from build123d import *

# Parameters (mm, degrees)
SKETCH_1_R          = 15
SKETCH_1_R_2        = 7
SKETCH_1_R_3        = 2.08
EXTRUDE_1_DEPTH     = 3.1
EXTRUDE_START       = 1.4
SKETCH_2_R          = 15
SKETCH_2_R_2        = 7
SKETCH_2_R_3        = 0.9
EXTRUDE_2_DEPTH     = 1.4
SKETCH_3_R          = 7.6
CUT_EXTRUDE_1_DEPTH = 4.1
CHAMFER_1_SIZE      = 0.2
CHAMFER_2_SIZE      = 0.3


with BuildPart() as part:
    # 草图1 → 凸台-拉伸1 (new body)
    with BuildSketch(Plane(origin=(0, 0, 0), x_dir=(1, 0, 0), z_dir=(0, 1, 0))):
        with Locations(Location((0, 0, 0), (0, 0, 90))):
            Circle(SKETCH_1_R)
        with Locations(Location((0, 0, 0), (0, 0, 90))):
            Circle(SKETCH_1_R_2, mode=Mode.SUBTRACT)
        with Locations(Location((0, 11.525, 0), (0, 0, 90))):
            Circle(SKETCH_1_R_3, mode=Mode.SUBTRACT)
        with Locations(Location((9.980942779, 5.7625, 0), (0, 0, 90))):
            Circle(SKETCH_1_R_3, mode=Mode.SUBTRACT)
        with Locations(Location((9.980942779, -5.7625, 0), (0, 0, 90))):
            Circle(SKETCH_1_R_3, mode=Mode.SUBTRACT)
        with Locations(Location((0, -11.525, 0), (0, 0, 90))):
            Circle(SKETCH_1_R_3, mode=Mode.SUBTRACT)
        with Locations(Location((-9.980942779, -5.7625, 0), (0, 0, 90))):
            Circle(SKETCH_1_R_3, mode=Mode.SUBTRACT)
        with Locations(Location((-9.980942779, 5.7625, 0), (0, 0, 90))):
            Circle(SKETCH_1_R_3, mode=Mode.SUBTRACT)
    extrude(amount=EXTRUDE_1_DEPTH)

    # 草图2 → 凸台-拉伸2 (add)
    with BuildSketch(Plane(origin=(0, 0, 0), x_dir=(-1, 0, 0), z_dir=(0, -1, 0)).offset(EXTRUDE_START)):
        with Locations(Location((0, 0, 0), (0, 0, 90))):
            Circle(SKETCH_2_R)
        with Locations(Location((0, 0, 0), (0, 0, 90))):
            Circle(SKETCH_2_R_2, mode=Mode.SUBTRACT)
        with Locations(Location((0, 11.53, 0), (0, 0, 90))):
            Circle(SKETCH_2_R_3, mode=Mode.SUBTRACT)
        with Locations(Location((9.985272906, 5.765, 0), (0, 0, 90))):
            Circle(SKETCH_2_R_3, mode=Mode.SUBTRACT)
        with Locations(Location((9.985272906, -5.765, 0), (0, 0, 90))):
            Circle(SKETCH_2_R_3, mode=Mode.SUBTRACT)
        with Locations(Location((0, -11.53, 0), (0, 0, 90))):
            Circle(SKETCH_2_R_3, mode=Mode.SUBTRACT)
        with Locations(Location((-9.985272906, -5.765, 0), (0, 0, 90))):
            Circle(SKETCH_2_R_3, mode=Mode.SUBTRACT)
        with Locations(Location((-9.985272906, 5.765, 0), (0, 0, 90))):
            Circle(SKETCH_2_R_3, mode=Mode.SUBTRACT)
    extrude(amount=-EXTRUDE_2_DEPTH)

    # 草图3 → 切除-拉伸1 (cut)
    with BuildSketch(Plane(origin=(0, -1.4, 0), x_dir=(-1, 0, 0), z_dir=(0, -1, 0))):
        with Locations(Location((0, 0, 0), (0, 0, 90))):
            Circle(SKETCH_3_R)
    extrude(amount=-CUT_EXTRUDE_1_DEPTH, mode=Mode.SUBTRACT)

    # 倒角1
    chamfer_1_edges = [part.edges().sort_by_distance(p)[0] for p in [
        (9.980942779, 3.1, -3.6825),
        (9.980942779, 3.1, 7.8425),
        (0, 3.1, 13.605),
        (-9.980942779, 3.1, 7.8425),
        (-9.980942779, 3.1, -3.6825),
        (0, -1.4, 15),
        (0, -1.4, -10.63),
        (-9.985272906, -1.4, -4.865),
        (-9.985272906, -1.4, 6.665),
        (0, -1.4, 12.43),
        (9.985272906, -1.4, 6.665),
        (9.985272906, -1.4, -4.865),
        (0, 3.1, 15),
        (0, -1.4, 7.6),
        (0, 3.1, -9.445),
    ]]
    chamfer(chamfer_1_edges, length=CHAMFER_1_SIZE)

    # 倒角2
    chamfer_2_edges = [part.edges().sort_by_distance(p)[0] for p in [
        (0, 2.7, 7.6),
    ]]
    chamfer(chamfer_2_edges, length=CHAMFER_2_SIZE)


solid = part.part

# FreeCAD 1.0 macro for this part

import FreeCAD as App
import Part
import Sketcher
from FreeCAD import Vector
Q = App.Units.Quantity


def edges_at(feature, points):
    """Names of the edges that pass closest to the given points."""
    edges = feature.Shape.Edges
    near = lambda p: min(range(len(edges)), key=lambda i: edges[i].distToShape(Part.Vertex(*p))[0])
    return sorted({f"Edge{near(p) + 1}" for p in points})

doc = App.newDocument("Part")
body = doc.addObject("PartDesign::Body", "Body")

# Sketch on XZ plane
sketch1 = body.newObject("Sketcher::SketchObject", "Sketch")
sketch1.AttachmentSupport = (doc.getObject("XZ_Plane"), [""])
sketch1.MapMode = "FlatFace"
sketch1.addGeometry([
    Part.Circle(Vector(0, 0, 0), Vector(0, 0, 1), 15),  # 0
    Part.Circle(Vector(9.980943, 5.7625, 0), Vector(0, 0, 1), 2.08),  # 1
    Part.Circle(Vector(0, 11.525, 0), Vector(0, 0, 1), 2.08),  # 2
    Part.Circle(Vector(9.980943, -5.7625, 0), Vector(0, 0, 1), 2.08),  # 3
    Part.Circle(Vector(0, 0, 0), Vector(0, 0, 1), 7),  # 4
    Part.Circle(Vector(-9.980943, 5.7625, 0), Vector(0, 0, 1), 2.08),  # 5
    Part.Circle(Vector(0, -11.525, 0), Vector(0, 0, 1), 2.08),  # 6
    Part.Circle(Vector(-9.980943, -5.7625, 0), Vector(0, 0, 1), 2.08),  # 7
], False)
sketch1.addConstraint([
    Sketcher.Constraint("Coincident", 0, 3, -1, 1),
    Sketcher.Constraint("Coincident", 4, 3, -1, 1),
    Sketcher.Constraint("Equal", 1, 2),
    Sketcher.Constraint("Equal", 2, 3),
    Sketcher.Constraint("Equal", 3, 5),
    Sketcher.Constraint("Equal", 5, 6),
    Sketcher.Constraint("Equal", 6, 7),
    Sketcher.Constraint("Symmetric", 3, 3, 5, 3, -1, 1),
    Sketcher.Constraint("Symmetric", 2, 3, 6, 3, -1, 1),
    Sketcher.Constraint("Symmetric", 1, 3, 7, 3, -1, 1),
    Sketcher.Constraint("Symmetric", 1, 3, 5, 3, -2),
    Sketcher.Constraint("PointOnObject", 2, 3, -2),
    Sketcher.Constraint("Diameter", 0, Q("30 mm")),
    Sketcher.Constraint("Diameter", 4, Q("14 mm")),
    Sketcher.Constraint("Diameter", 1, Q("4.16 mm")),
    Sketcher.Constraint("DistanceY", -1, 1, 2, 3, Q("11.525 mm")),
    Sketcher.Constraint("DistanceY", 3, 3, 1, 3, Q("11.525 mm")),
    Sketcher.Constraint("DistanceX", -1, 1, 1, 3, Q("9.980943 mm")),
])
pad1 = body.newObject("PartDesign::Pad", "Pad")
pad1.Profile = sketch1
pad1.Length = 3.1
pad1.Reversed = True

# Sketch on XZ plane
sketch2 = body.newObject("Sketcher::SketchObject", "Sketch001")
sketch2.AttachmentSupport = (doc.getObject("XZ_Plane"), [""])
sketch2.MapMode = "FlatFace"
sketch2.AttachmentOffset = App.Placement(Vector(0, 0, 1.4), App.Rotation())
sketch2.addGeometry([
    Part.Circle(Vector(0, 0, 0), Vector(0, 0, 1), 15),  # 0
    Part.Circle(Vector(-9.985273, 5.765, 0), Vector(0, 0, 1), 0.9),  # 1
    Part.Circle(Vector(0, 11.53, 0), Vector(0, 0, 1), 0.9),  # 2
    Part.Circle(Vector(-9.985273, -5.765, 0), Vector(0, 0, 1), 0.9),  # 3
    Part.Circle(Vector(9.985273, 5.765, 0), Vector(0, 0, 1), 0.9),  # 4
    Part.Circle(Vector(0, 0, 0), Vector(0, 0, 1), 7),  # 5
    Part.Circle(Vector(0, -11.53, 0), Vector(0, 0, 1), 0.9),  # 6
    Part.Circle(Vector(9.985273, -5.765, 0), Vector(0, 0, 1), 0.9),  # 7
], False)
sketch2.addConstraint([
    Sketcher.Constraint("Coincident", 0, 3, -1, 1),
    Sketcher.Constraint("Coincident", 5, 3, -1, 1),
    Sketcher.Constraint("Equal", 1, 2),
    Sketcher.Constraint("Equal", 2, 3),
    Sketcher.Constraint("Equal", 3, 4),
    Sketcher.Constraint("Equal", 4, 6),
    Sketcher.Constraint("Equal", 6, 7),
    Sketcher.Constraint("Symmetric", 3, 3, 4, 3, -1, 1),
    Sketcher.Constraint("Symmetric", 2, 3, 6, 3, -1, 1),
    Sketcher.Constraint("Symmetric", 1, 3, 7, 3, -1, 1),
    Sketcher.Constraint("Symmetric", 1, 3, 4, 3, -2),
    Sketcher.Constraint("PointOnObject", 2, 3, -2),
    Sketcher.Constraint("Diameter", 0, Q("30 mm")),
    Sketcher.Constraint("Diameter", 5, Q("14 mm")),
    Sketcher.Constraint("Diameter", 1, Q("1.8 mm")),
    Sketcher.Constraint("DistanceY", -1, 1, 2, 3, Q("11.53 mm")),
    Sketcher.Constraint("DistanceY", 3, 3, 1, 3, Q("11.53 mm")),
    Sketcher.Constraint("DistanceX", 1, 3, -1, 1, Q("9.985273 mm")),
])
pad2 = body.newObject("PartDesign::Pad", "Pad001")
pad2.Profile = sketch2
pad2.Length = 1.4
pad2.Reversed = True

# Sketch on XZ plane
sketch3 = body.newObject("Sketcher::SketchObject", "Sketch002")
sketch3.AttachmentSupport = (doc.getObject("XZ_Plane"), [""])
sketch3.MapMode = "FlatFace"
sketch3.AttachmentOffset = App.Placement(Vector(0, 0, 1.4), App.Rotation())
sketch3.addGeometry(Part.Circle(Vector(0, 0, 0), Vector(0, 0, 1), 7.6), False)
sketch3.addConstraint([
    Sketcher.Constraint("Coincident", 0, 3, -1, 1),
    Sketcher.Constraint("Diameter", 0, Q("15.2 mm")),
])
pocket1 = body.newObject("PartDesign::Pocket", "Pocket")
pocket1.Profile = sketch3
pocket1.Length = 4.1
doc.recompute()

chamfer = body.newObject("PartDesign::Chamfer", "Chamfer")
chamfer.Base = (pocket1, edges_at(pocket1, [
    (9.981, 3.1, -3.683),
    (9.981, 3.1, 7.843),
    (0, 3.1, 13.605),
    (-9.981, 3.1, 7.843),
    (-9.981, 3.1, -3.683),
    (0, -1.4, 15),
    (0, -1.4, -10.63),
    (-9.985, -1.4, -4.865),
    (-9.985, -1.4, 6.665),
    (0, -1.4, 12.43),
    (9.985, -1.4, 6.665),
    (9.985, -1.4, -4.865),
    (0, 3.1, 15),
    (0, -1.4, 7.6),
    (0, 3.1, -9.445),
]))
chamfer.Size = 0.2
doc.recompute()

chamfer2 = body.newObject("PartDesign::Chamfer", "Chamfer001")
chamfer2.Base = (chamfer, edges_at(chamfer, [(0, 2.7, 7.6)]))
chamfer2.Size = 0.3

doc.recompute()
